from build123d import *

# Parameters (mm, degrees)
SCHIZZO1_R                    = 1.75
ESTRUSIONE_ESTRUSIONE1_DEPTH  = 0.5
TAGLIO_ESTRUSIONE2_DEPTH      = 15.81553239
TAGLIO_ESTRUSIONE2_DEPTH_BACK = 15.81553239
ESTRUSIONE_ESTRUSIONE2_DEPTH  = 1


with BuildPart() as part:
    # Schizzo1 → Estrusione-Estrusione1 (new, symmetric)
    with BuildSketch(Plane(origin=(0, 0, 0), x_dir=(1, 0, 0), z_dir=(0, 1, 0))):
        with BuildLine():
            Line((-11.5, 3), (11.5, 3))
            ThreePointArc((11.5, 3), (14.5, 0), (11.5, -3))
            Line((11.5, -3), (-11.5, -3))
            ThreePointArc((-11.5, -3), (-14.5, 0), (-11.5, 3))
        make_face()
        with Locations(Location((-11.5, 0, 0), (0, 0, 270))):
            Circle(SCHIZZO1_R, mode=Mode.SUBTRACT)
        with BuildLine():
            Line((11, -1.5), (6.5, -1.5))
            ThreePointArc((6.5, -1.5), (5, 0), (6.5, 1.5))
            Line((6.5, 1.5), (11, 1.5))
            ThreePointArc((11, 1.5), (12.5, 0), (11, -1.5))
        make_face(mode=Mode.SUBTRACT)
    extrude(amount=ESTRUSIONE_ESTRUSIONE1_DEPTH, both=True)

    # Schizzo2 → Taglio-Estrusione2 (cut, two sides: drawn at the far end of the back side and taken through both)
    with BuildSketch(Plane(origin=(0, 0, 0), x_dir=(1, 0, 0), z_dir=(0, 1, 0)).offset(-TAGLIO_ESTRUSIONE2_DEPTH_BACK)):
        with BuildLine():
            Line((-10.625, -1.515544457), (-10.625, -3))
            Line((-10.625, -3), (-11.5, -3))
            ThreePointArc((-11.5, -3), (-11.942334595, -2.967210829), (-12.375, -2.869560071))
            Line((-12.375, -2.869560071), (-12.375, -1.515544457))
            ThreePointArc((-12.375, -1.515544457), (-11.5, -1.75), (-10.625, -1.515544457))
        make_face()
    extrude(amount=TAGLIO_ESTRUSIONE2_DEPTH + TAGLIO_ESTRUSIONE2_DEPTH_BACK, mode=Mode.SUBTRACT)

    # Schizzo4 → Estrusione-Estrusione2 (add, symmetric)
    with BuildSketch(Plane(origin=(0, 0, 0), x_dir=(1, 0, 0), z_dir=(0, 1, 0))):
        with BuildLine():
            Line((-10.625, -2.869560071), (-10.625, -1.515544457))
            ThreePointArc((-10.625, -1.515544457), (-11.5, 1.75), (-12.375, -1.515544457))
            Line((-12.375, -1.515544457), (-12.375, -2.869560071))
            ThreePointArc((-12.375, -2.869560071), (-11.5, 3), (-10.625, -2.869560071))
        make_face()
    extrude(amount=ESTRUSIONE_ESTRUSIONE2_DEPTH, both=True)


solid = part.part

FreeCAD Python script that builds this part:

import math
import FreeCAD as App
import Part
import Sketcher

doc = App.newDocument("Part")
body = doc.addObject("PartDesign::Body", "Body")

# Sketch on XZ plane
sketch1 = body.newObject("Sketcher::SketchObject", "Sketch")
sketch1.AttachmentSupport = (doc.getObject("XZ_Plane"), [""])
sketch1.MapMode = "FlatFace"
sketch1.addGeometry([
    Part.LineSegment(App.Vector(11.5, -3, 0), App.Vector(-11.5, -3, 0)),  # 0
    Part.ArcOfCircle(Part.Circle(App.Vector(-11.5, 0, 0), App.Vector(0, 0, 1), 3), math.radians(90), math.radians(270)),  # 1
    Part.LineSegment(App.Vector(-11.5, 3, 0), App.Vector(11.5, 3, 0)),  # 2
    Part.ArcOfCircle(Part.Circle(App.Vector(11.5, 0, 0), App.Vector(0, 0, 1), 3), math.radians(-90), math.radians(90)),  # 3
    Part.LineSegment(App.Vector(11, 1.5, 0), App.Vector(6.5, 1.5, 0)),  # 4
    Part.ArcOfCircle(Part.Circle(App.Vector(6.5, 0, 0), App.Vector(0, 0, 1), 1.5), math.radians(90), math.radians(270)),  # 5
    Part.LineSegment(App.Vector(6.5, -1.5, 0), App.Vector(11, -1.5, 0)),  # 6
    Part.ArcOfCircle(Part.Circle(App.Vector(11, 0, 0), App.Vector(0, 0, 1), 1.5), math.radians(-90), math.radians(90)),  # 7
    Part.Circle(App.Vector(-11.5, 0, 0), App.Vector(0, 0, 1), 1.75),  # 8
], False)
sketch1.addConstraint([
    Sketcher.Constraint("Tangent", 0, 2, 1, 2),
    Sketcher.Constraint("Tangent", 1, 1, 2, 1),
    Sketcher.Constraint("Tangent", 2, 2, 3, 2),
    Sketcher.Constraint("Tangent", 3, 1, 0, 1),
    Sketcher.Constraint("Tangent", 4, 2, 5, 1),
    Sketcher.Constraint("Tangent", 5, 2, 6, 1),
    Sketcher.Constraint("Tangent", 6, 2, 7, 1),
    Sketcher.Constraint("Tangent", 7, 2, 4, 1),
    Sketcher.Constraint("Horizontal", 0),
    Sketcher.Constraint("Horizontal", 2),
    Sketcher.Constraint("Horizontal", 4),
    Sketcher.Constraint("Horizontal", 6),
    Sketcher.Constraint("Coincident", 8, 3, 1, 3),
    Sketcher.Constraint("Symmetric", 1, 3, 3, 3, -1, 1),
    Sketcher.Constraint("PointOnObject", 5, 3, -1),
    Sketcher.Constraint("Radius", 1, 3.0),
    Sketcher.Constraint("Diameter", 8, 3.5),
    Sketcher.Constraint("Radius", 5, 1.5),
    Sketcher.Constraint("DistanceX", 0, 2, 0, 1, 23.0),
    Sketcher.Constraint("DistanceX", 4, 2, 4, 1, 4.5),
    Sketcher.Constraint("DistanceX", -1, 1, 7, 3, 11.0),
])
pad1 = body.newObject("PartDesign::Pad", "Pad")
pad1.Profile = sketch1
pad1.Length = 1
pad1.Midplane = True

# Sketch on XZ plane
sketch2 = body.newObject("Sketcher::SketchObject", "Sketch001")
sketch2.AttachmentSupport = (doc.getObject("XZ_Plane"), [""])
sketch2.MapMode = "FlatFace"
sketch2.addGeometry([
    Part.LineSegment(App.Vector(-10.625, 3, 0), App.Vector(-10.625, 1.515544, 0)),  # 0
    Part.ArcOfCircle(Part.Circle(App.Vector(-11.5, 0, 0), App.Vector(0, 0, 1), 1.75), math.radians(60), math.radians(120)),  # 1
    Part.LineSegment(App.Vector(-12.375, 1.515544, 0), App.Vector(-12.375, 2.86956, 0)),  # 2
    Part.ArcOfCircle(Part.Circle(App.Vector(-11.5, 0, 0), App.Vector(0, 0, 1), 3), math.radians(90), math.radians(106.957763)),  # 3
    Part.LineSegment(App.Vector(-11.5, 3, 0), App.Vector(-10.625, 3, 0)),  # 4
], False)
sketch2.addConstraint([
    Sketcher.Constraint("Coincident", 0, 2, 1, 1),
    Sketcher.Constraint("Coincident", 1, 2, 2, 1),
    Sketcher.Constraint("Coincident", 2, 2, 3, 2),
    Sketcher.Constraint("Tangent", 3, 1, 4, 1),
    Sketcher.Constraint("Coincident", 4, 2, 0, 1),
    Sketcher.Constraint("Vertical", 0),
    Sketcher.Constraint("Vertical", 2),
    Sketcher.Constraint("Horizontal", 4),
    Sketcher.Constraint("Coincident", 3, 3, 1, 3),
    Sketcher.Constraint("PointOnObject", 1, 3, -1),
    Sketcher.Constraint("Horizontal", 0, 2, 1, 2),
    Sketcher.Constraint("Radius", 3, 3.0),
    Sketcher.Constraint("Radius", 1, 1.75),
    Sketcher.Constraint("DistanceX", 1, 3, -1, 1, 11.5),
    Sketcher.Constraint("DistanceX", 4, 1, 4, 2, 0.875),
])
pocket1 = body.newObject("PartDesign::Pocket", "Pocket")
pocket1.Profile = sketch2
pocket1.Type = "ThroughAll"
pocket1.Midplane = True

# Sketch on XZ plane
sketch3 = body.newObject("Sketcher::SketchObject", "Sketch002")
sketch3.AttachmentSupport = (doc.getObject("XZ_Plane"), [""])
sketch3.MapMode = "FlatFace"
sketch3.addGeometry([
    Part.LineSegment(App.Vector(-10.625, 1.515544, 0), App.Vector(-10.625, 2.86956, 0)),
    Part.ArcOfCircle(Part.Circle(App.Vector(-11.5, 0, 0), App.Vector(0, 0, 1), 3), math.radians(106.957763), math.radians(433.042237)),
    Part.LineSegment(App.Vector(-12.375, 2.86956, 0), App.Vector(-12.375, 1.515544, 0)),
    Part.ArcOfCircle(Part.Circle(App.Vector(-11.5, 0, 0), App.Vector(0, 0, 1), 1.75), math.radians(120), math.radians(420)),
], False)
sketch3.addConstraint([
    Sketcher.Constraint("Coincident", 0, 2, 1, 2),
    Sketcher.Constraint("Coincident", 1, 1, 2, 1),
    Sketcher.Constraint("Coincident", 2, 2, 3, 1),
    Sketcher.Constraint("Coincident", 3, 2, 0, 1),
    Sketcher.Constraint("Vertical", 0),
    Sketcher.Constraint("Vertical", 2),
    Sketcher.Constraint("Coincident", 3, 3, 1, 3),
    Sketcher.Constraint("PointOnObject", 1, 3, -1),
    Sketcher.Constraint("Horizontal", 0, 2, 1, 1),
    Sketcher.Constraint("Radius", 1, 3.0),
    Sketcher.Constraint("Radius", 3, 1.75),
    Sketcher.Constraint("DistanceX", 1, 3, -1, 1, 11.5),
    Sketcher.Constraint("DistanceX", 1, 1, 0, 2, 1.75),
])
pad2 = body.newObject("PartDesign::Pad", "Pad001")
pad2.Profile = sketch3
pad2.Length = 2
pad2.Midplane = True

doc.recompute()
